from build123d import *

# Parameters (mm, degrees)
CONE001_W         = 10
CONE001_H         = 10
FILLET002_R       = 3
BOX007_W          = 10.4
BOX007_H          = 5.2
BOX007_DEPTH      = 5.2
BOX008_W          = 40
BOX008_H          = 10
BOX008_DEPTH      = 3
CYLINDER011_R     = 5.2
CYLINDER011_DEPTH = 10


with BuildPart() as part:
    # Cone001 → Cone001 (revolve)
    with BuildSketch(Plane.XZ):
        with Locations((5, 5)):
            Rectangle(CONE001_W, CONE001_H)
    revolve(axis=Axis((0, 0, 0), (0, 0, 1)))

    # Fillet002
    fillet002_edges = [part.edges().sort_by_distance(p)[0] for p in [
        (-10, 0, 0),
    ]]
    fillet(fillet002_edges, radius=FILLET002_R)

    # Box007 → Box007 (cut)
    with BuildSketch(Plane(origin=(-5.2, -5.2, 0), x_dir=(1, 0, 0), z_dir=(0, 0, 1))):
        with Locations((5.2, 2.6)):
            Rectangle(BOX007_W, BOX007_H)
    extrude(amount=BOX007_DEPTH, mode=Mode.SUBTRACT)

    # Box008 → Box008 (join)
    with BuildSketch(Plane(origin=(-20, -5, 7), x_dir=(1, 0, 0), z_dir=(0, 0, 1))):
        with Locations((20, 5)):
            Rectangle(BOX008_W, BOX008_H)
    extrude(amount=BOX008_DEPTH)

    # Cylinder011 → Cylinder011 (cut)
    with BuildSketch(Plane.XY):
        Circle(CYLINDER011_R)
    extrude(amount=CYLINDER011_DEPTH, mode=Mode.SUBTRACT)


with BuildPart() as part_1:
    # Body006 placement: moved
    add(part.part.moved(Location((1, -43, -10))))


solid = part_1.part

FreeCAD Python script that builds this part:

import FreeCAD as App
import Part
import Sketcher

V = App.Vector
Q = App.Units.Quantity


def edges_at(feature, points):
    """Names of the edges that pass closest to the given points."""
    edges = feature.Shape.Edges
    near = lambda p: min(range(len(edges)), key=lambda i: edges[i].distToShape(Part.Vertex(*p))[0])
    return sorted({f"Edge{near(p) + 1}" for p in points})


def add_polygon(sketch, points):
    """Adds a closed chain of lines whose ends are joined by coincident constraints."""
    first, n = sketch.GeometryCount, len(points)
    for a, b in zip(points, points[1:] + points[:1]):
        sketch.addGeometry(Part.LineSegment(App.Vector(*a, 0), App.Vector(*b, 0)), False)
    for i in range(n):
        sketch.addConstraint(Sketcher.Constraint("Coincident", first + i, 2, first + (i + 1) % n, 1))

doc = App.newDocument("Part")
body = doc.addObject("PartDesign::Body", "Body")

sketch1 = body.newObject("Sketcher::SketchObject", "Sketch")
sketch1.AttachmentSupport = (doc.getObject("XZ_Plane"), [""])
sketch1.MapMode = "FlatFace"
add_polygon(sketch1, [(0, 10), (0, 0), (10, 0), (10, 10)])
sketch1.addConstraint([
    Sketcher.Constraint("Vertical", 0),
    Sketcher.Constraint("Horizontal", 1),
    Sketcher.Constraint("Vertical", 2),
    Sketcher.Constraint("Horizontal", 3),
    Sketcher.Constraint("Coincident", 0, 2, -1, 1),
    Sketcher.Constraint("Equal", 3, 0),
    Sketcher.Constraint("DistanceX", 1, 1, 1, 2, Q("10 mm")),
])
revolution = body.newObject("PartDesign::Revolution", "Revolution")
revolution.Profile = sketch1
revolution.ReferenceAxis = (sketch1, ["V_Axis"])
revolution.Angle = 360
doc.recompute()

fillet = body.newObject("PartDesign::Fillet", "Fillet")
fillet.Base = (revolution, edges_at(revolution, [(-10, 0, 0)]))
fillet.Radius = 3

sketch2 = body.newObject("Sketcher::SketchObject", "Sketch001")
sketch2.AttachmentSupport = (doc.getObject("XY_Plane"), [""])
sketch2.MapMode = "FlatFace"
add_polygon(sketch2, [(-5, 0), (-5, -5), (5, -5), (5, 0)])
sketch2.addConstraint([
    Sketcher.Constraint("Vertical", 0),
    Sketcher.Constraint("Horizontal", 1),
    Sketcher.Constraint("Vertical", 2),
    Sketcher.Constraint("Horizontal", 3),
    Sketcher.Constraint("Symmetric", 2, 2, 3, 2, -1, 1),
    Sketcher.Constraint("DistanceX", 1, 1, 1, 2, Q("10.4 mm")),
    Sketcher.Constraint("DistanceY", 0, 2, 0, 1, Q("5.2 mm")),
])
pocket1 = body.newObject("PartDesign::Pocket", "Pocket")
pocket1.Profile = sketch2
pocket1.Length = 5.2
pocket1.Reversed = True

sketch3 = body.newObject("Sketcher::SketchObject", "Sketch002")
sketch3.AttachmentSupport = (doc.getObject("XY_Plane"), [""])
sketch3.MapMode = "FlatFace"
sketch3.AttachmentOffset = App.Placement(V(0, 0, 7), App.Rotation())
add_polygon(sketch3, [(-20, 5), (-20, -5), (20, -5), (20, 5)])
sketch3.addConstraint([
    Sketcher.Constraint("Vertical", 0),
    Sketcher.Constraint("Horizontal", 1),
    Sketcher.Constraint("Vertical", 2),
    Sketcher.Constraint("Horizontal", 3),
    Sketcher.Constraint("Symmetric", 0, 2, 2, 2, -1, 1),
    Sketcher.Constraint("DistanceX", 1, 1, 1, 2, Q("40 mm")),
    Sketcher.Constraint("DistanceY", 0, 2, 0, 1, Q("10 mm")),
])
pad1 = body.newObject("PartDesign::Pad", "Pad")
pad1.Profile = sketch3
pad1.Length = 3

sketch4 = body.newObject("Sketcher::SketchObject", "Sketch003")
sketch4.AttachmentSupport = (doc.getObject("XY_Plane"), [""])
sketch4.MapMode = "FlatFace"
sketch4.addGeometry(Part.Circle(V(0, 0, 0), V(0, 0, 1), 5), False)
sketch4.addConstraint([
    Sketcher.Constraint("Coincident", 0, 3, -1, 1),
    Sketcher.Constraint("Diameter", 0, Q("10.4 mm")),
])
pocket2 = body.newObject("PartDesign::Pocket", "Pocket001")
pocket2.Profile = sketch4
pocket2.Length = 10
pocket2.Reversed = True
body2 = doc.addObject("PartDesign::Body", "Body001")
doc.recompute()

body.Placement = App.Placement(V(1, -43, -10), App.Rotation(V(0, 0, 1), 0))
boolean = body2.newObject("PartDesign::Boolean", "Boolean")
boolean.Type = "Fuse"
boolean.addObjects([body])

doc.recompute()
